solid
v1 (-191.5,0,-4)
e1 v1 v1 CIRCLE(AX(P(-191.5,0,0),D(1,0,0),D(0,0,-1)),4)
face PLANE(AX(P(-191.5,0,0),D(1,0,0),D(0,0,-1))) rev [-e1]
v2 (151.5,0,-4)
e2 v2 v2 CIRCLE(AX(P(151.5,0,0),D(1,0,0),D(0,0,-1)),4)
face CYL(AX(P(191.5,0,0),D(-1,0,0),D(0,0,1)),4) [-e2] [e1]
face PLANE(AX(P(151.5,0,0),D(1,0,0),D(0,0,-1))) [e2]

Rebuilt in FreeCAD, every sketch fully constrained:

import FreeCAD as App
import Part
import Sketcher
Q = App.Units.Quantity

doc = App.newDocument("Part")
params = doc.addObject("Spreadsheet::Sheet", "Params")
for row, (alias, value) in enumerate([
    ("sketch1_diameter", "8 mm"),
    ("pad1_length", "383 mm"),
    ("sketch2_diameter", "8 mm"),
    ("pocket1_length", "40 mm"),
], start=1):
    params.set(f"A{row}", alias)
    params.set(f"B{row}", "=" + value)
    params.setAlias(f"B{row}", alias)

body = doc.addObject("PartDesign::Body", "Body")

sketch1 = doc.addObject("Sketcher::SketchObject", "Sketch")
body.addObject(sketch1)
sketch1.AttachmentSupport = (doc.YZ_Plane, [""])
sketch1.MapMode = "FlatFace"
sketch1.addGeometry(Part.Circle(App.Vector(0, 0, 0), App.Vector(0, 0, 1), 4), False)
sketch1.addConstraint(Sketcher.Constraint("Coincident", 0, 3, -1, 1))
sketch1.addConstraint(Sketcher.Constraint("Diameter", 0, Q("8 mm")))
sketch1.setExpression("Constraints[1]", "Params.sketch1_diameter")
pad1 = doc.addObject("PartDesign::Pad", "Pad")
body.addObject(pad1)
pad1.Profile = sketch1
pad1.setExpression("Length", "Params.pad1_length")
pad1.Midplane = True

sketch2 = doc.addObject("Sketcher::SketchObject", "Sketch001")
body.addObject(sketch2)
sketch2.AttachmentSupport = (doc.YZ_Plane, [""])
sketch2.MapMode = "FlatFace"
sketch2.AttachmentOffset = App.Placement(App.Vector(0, 0, 191.5), App.Rotation())
sketch2.addGeometry(Part.Circle(App.Vector(0, 0, 0), App.Vector(0, 0, 1), 4), False)
sketch2.addConstraint(Sketcher.Constraint("Coincident", 0, 3, -1, 1))
sketch2.addConstraint(Sketcher.Constraint("Diameter", 0, Q("8 mm")))
sketch2.setExpression("Constraints[1]", "Params.sketch2_diameter")
pocket1 = doc.addObject("PartDesign::Pocket", "Pocket")
body.addObject(pocket1)
pocket1.Profile = sketch2
pocket1.setExpression("Length", "Params.pocket1_length")

doc.recompute()
